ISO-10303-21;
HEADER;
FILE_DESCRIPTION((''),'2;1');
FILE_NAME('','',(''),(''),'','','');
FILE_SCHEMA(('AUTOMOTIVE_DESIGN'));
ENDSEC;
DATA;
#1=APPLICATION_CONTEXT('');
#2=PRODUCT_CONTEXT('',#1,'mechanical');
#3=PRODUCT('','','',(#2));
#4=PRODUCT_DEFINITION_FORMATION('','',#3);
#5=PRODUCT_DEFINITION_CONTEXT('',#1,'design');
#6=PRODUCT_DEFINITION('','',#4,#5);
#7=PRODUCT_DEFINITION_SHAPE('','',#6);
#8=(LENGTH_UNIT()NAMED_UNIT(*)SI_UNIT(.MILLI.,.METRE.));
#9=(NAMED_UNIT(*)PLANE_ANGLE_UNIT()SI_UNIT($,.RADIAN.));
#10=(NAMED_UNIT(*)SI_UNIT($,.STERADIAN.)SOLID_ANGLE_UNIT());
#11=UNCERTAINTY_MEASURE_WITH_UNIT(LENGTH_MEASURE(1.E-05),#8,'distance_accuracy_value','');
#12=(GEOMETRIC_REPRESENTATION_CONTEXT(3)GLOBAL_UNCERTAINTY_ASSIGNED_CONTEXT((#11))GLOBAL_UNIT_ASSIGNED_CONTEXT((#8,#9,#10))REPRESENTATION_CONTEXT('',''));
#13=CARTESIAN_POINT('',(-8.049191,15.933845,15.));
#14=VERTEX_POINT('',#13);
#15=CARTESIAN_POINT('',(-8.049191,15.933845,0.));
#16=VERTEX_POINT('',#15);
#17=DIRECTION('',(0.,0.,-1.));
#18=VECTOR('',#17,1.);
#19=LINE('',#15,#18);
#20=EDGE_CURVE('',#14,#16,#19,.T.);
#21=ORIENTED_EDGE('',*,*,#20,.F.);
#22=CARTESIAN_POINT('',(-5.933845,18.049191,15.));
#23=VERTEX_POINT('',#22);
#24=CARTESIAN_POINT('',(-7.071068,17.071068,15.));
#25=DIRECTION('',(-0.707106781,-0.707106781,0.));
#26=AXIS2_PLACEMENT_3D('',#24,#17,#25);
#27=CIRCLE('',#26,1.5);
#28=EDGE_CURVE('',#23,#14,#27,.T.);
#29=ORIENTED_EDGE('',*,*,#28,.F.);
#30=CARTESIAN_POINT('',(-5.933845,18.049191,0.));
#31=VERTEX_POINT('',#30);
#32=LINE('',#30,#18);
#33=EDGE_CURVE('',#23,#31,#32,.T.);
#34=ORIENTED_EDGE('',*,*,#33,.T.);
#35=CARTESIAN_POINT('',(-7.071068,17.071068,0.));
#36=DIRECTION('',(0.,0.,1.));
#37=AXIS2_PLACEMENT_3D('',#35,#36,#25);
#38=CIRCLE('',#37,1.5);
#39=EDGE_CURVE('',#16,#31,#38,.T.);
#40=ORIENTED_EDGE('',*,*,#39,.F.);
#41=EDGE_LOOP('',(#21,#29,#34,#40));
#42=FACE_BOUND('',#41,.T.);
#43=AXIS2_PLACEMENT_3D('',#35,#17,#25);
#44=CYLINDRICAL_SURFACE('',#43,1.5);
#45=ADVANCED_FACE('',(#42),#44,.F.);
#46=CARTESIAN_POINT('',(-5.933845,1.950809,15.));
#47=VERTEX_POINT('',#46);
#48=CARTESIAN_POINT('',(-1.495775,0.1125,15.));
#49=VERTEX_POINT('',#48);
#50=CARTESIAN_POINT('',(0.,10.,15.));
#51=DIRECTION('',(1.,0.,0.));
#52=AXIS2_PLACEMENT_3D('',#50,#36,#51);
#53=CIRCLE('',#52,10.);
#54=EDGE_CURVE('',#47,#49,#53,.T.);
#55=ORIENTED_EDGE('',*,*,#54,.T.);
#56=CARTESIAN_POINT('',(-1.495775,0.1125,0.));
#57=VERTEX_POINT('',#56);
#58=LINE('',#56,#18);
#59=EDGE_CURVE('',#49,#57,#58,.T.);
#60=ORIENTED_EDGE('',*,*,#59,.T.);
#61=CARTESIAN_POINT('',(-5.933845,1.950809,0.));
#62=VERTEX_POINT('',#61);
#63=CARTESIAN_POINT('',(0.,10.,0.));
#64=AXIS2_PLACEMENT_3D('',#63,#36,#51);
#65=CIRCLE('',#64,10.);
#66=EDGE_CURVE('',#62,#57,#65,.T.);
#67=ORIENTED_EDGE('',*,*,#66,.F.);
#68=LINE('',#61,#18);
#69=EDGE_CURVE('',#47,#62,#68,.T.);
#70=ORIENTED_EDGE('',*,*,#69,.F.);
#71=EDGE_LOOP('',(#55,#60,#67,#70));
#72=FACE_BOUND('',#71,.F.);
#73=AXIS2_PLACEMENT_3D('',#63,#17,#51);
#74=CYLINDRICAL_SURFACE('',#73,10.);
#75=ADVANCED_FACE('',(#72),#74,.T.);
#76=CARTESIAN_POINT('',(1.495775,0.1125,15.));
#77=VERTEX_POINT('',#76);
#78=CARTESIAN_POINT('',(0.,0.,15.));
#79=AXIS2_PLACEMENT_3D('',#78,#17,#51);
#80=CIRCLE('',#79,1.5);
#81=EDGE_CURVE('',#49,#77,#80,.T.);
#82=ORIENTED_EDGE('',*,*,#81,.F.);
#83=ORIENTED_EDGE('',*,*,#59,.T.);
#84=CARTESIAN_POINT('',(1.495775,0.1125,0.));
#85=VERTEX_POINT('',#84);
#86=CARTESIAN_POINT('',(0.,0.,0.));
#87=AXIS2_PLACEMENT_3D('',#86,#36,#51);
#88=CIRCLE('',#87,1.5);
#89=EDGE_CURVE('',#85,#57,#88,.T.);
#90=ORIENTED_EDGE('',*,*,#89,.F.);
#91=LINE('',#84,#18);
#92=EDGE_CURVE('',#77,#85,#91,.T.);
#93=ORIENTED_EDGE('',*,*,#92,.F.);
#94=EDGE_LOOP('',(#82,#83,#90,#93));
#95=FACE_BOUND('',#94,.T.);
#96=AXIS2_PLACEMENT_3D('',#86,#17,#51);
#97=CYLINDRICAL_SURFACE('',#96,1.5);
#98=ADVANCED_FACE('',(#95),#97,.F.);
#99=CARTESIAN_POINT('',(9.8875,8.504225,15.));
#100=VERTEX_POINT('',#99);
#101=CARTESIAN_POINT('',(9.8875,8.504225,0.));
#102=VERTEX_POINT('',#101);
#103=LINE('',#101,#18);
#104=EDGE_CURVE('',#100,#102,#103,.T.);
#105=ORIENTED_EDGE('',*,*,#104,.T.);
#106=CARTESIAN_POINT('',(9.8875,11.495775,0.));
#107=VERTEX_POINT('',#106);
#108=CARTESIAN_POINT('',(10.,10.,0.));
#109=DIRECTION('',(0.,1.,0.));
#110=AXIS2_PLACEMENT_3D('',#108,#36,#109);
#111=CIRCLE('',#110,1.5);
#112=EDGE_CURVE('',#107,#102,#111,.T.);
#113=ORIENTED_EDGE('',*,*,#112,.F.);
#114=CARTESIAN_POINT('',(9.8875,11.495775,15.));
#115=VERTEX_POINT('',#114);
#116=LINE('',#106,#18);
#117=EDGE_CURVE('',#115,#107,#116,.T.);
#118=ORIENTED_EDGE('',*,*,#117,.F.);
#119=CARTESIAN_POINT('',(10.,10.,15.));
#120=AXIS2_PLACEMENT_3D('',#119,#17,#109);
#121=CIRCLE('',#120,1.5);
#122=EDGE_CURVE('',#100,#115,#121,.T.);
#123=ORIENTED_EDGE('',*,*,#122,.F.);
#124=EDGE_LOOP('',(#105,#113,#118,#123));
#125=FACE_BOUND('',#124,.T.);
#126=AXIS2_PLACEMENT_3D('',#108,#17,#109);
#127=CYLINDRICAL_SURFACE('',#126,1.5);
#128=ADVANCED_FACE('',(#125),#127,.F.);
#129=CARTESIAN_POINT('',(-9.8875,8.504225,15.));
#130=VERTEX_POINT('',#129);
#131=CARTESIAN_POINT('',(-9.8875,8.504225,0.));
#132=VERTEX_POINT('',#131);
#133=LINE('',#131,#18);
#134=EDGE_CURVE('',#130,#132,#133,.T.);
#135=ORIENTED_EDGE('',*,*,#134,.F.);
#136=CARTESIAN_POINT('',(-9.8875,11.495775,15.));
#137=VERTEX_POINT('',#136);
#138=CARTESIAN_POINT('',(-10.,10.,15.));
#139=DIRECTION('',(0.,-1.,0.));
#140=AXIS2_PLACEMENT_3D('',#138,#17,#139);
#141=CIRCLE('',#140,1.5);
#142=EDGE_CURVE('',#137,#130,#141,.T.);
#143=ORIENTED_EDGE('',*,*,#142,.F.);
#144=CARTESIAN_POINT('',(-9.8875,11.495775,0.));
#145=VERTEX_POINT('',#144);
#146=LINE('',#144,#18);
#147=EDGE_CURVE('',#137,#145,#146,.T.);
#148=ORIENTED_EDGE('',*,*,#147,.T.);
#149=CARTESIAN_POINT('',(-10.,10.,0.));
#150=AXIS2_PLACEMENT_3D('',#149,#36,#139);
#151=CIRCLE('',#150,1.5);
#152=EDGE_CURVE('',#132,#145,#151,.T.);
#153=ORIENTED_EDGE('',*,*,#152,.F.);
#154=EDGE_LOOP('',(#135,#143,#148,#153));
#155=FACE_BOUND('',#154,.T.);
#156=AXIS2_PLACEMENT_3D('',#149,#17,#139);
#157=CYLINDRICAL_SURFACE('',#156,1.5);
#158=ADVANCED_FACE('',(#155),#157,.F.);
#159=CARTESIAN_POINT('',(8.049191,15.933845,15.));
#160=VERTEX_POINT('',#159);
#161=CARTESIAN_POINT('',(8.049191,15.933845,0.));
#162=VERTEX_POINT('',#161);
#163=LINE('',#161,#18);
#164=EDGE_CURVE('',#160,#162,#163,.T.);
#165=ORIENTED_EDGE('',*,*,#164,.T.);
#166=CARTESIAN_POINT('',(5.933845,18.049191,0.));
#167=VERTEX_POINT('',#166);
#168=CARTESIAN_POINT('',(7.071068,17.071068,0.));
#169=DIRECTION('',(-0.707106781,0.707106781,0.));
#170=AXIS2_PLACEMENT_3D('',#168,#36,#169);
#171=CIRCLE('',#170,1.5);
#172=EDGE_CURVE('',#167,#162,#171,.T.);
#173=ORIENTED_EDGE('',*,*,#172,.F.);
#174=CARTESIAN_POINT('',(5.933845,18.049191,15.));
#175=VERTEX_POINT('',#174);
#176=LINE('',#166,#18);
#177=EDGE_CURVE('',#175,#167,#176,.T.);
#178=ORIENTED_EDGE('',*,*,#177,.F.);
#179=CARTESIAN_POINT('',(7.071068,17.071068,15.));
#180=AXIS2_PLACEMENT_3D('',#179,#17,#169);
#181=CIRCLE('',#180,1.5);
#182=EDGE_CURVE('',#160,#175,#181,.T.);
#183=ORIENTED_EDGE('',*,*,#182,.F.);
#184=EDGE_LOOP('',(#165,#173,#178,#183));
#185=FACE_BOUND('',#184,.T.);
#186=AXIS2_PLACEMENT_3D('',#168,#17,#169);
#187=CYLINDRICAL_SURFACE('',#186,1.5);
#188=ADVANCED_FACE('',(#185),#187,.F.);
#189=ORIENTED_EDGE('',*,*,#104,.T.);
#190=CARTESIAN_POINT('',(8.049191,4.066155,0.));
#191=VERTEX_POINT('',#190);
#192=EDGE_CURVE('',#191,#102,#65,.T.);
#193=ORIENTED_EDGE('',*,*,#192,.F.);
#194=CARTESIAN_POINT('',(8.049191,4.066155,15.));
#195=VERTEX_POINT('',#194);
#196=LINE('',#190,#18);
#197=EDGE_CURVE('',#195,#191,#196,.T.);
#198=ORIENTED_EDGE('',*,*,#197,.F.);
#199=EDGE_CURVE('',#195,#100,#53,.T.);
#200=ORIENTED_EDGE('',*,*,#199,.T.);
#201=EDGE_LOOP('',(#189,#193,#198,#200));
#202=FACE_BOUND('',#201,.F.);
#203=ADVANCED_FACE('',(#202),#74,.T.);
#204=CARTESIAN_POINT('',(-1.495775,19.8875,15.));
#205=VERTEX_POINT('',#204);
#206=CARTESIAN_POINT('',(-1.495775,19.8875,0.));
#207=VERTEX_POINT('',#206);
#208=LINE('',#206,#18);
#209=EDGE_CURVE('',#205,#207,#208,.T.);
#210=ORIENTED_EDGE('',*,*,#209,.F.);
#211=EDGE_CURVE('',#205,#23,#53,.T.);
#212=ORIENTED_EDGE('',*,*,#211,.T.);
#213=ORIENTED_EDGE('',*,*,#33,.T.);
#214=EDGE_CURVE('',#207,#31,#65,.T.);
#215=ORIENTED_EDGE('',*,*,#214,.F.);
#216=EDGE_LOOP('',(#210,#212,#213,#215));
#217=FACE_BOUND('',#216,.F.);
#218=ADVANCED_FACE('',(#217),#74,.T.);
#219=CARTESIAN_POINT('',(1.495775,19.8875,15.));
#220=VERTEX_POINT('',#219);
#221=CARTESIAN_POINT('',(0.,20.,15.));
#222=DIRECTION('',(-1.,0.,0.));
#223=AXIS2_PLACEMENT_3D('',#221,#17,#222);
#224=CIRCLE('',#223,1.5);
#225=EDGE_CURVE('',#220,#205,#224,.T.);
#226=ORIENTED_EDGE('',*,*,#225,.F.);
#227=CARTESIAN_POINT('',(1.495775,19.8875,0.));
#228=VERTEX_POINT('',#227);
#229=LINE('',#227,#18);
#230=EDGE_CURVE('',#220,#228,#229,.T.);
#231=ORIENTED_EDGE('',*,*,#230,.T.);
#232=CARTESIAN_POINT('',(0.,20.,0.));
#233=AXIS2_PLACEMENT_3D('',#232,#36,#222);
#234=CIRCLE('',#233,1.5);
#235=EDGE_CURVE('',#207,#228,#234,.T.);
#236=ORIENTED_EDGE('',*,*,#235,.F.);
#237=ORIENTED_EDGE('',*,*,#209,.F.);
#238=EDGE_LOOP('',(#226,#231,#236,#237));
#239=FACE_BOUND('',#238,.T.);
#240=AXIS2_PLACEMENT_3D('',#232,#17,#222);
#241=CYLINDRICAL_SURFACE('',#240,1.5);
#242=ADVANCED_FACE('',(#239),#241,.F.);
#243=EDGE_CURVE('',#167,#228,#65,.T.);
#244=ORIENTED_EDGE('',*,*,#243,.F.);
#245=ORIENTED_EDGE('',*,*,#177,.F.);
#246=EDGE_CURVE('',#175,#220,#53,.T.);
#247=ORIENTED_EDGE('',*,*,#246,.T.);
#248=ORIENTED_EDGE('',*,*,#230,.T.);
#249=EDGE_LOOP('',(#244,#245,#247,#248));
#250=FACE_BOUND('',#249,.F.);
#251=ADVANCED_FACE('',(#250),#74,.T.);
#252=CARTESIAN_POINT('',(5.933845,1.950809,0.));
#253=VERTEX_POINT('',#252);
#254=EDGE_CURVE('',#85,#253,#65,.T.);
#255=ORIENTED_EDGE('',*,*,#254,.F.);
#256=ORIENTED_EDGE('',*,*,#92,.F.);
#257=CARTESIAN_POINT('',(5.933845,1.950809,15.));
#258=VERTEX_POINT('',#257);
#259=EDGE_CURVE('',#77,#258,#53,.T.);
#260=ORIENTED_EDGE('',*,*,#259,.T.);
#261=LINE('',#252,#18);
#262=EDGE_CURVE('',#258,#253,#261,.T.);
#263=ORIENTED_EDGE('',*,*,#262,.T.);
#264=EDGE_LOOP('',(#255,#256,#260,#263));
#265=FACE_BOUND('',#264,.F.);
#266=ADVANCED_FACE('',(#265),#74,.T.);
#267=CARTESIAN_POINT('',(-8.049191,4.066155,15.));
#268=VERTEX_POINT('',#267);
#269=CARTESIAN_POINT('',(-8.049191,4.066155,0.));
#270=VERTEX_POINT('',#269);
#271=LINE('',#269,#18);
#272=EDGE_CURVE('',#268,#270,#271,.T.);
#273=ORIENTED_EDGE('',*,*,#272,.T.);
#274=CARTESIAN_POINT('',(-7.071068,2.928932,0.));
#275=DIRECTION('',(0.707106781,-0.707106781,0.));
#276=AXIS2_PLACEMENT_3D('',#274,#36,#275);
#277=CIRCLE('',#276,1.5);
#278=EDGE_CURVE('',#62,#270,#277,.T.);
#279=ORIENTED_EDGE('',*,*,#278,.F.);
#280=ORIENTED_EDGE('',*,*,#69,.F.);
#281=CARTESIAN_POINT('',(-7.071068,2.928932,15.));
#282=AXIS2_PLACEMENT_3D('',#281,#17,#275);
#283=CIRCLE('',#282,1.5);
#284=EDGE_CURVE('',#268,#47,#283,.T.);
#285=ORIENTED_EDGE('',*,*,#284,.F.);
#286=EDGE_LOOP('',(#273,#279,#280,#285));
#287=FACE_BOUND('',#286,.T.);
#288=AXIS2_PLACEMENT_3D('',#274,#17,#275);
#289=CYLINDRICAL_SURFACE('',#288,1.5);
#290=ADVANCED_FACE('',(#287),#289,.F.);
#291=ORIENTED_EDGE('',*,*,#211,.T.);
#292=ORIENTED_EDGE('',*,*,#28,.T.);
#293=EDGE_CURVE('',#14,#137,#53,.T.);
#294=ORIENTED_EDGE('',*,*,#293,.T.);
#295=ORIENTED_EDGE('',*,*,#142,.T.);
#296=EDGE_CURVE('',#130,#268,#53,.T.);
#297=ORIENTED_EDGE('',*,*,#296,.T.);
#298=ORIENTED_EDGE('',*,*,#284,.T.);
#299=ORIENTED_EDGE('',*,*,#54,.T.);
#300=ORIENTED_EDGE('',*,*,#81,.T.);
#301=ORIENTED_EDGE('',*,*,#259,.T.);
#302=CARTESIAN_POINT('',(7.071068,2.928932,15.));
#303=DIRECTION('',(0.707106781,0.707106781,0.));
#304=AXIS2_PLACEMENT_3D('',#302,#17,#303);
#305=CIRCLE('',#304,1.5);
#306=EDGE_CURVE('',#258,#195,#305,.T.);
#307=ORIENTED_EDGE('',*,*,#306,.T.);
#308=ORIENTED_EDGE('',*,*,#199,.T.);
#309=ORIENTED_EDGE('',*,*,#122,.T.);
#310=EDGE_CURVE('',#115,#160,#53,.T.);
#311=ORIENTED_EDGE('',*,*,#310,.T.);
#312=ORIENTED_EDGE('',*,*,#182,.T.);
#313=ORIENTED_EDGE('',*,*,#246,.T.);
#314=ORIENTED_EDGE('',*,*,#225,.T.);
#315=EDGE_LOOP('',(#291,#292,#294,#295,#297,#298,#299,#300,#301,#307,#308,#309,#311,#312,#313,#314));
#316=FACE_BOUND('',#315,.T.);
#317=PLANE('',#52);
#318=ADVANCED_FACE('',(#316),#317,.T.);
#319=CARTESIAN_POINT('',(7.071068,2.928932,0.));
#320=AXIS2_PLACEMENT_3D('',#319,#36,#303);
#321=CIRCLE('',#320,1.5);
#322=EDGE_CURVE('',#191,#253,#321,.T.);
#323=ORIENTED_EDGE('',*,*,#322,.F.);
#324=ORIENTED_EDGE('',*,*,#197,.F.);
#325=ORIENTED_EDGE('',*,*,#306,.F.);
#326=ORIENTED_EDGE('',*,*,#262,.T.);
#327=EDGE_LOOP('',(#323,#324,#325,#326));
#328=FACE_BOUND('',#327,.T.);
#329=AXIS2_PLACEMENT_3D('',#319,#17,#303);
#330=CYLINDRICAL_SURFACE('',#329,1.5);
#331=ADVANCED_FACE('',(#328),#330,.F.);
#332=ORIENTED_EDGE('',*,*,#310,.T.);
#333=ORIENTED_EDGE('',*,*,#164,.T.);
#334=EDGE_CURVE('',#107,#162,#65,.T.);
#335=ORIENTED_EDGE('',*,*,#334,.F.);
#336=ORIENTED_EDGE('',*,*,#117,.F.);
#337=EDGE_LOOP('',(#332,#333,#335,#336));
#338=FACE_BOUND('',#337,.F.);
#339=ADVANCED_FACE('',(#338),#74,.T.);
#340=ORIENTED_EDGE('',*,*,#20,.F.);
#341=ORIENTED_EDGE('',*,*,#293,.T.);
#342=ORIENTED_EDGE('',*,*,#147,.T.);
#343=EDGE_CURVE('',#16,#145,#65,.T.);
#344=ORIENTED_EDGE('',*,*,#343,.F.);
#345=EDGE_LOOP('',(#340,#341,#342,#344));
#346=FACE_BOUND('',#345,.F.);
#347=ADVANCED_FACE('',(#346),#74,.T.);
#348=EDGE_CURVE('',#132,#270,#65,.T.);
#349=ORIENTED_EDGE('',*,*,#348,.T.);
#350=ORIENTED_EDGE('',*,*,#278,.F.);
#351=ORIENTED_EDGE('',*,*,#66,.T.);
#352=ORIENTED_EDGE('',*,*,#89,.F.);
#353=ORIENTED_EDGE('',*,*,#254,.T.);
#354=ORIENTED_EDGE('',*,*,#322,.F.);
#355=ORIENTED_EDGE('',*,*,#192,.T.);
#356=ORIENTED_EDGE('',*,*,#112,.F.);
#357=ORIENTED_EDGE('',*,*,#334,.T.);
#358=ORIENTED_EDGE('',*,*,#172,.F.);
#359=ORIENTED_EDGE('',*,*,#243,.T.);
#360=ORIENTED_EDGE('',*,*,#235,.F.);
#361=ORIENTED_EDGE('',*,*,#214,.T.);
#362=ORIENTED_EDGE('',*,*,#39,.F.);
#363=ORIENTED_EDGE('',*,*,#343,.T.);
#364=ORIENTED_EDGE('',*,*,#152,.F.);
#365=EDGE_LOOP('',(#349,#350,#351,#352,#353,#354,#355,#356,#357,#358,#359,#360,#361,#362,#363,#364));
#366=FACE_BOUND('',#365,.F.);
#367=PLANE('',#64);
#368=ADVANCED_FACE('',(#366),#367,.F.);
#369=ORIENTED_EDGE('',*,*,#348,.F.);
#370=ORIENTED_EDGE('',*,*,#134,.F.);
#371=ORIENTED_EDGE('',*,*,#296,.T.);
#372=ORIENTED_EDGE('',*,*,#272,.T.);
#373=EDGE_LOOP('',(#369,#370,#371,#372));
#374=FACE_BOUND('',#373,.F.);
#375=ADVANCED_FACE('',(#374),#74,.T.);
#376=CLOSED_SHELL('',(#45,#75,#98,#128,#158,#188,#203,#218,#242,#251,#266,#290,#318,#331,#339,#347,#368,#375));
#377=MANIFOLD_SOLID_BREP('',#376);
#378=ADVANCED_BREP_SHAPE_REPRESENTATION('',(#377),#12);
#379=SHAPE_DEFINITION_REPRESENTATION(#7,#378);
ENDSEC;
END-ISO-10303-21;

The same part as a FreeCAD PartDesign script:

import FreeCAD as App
import Part
import Sketcher

doc = App.newDocument("Part")
body = doc.addObject("PartDesign::Body", "Body")

sketch1 = body.newObject("Sketcher::SketchObject", "Sketch")
sketch1.AttachmentSupport = (doc.getObject("XY_Plane"), [""])
sketch1.MapMode = "FlatFace"
sketch1.addGeometry(Part.Circle(App.Vector(0, 0, 0), App.Vector(0, 0, 1), 1.5), False)
sketch1.addConstraint(Sketcher.Constraint("Coincident", 0, 3, -1, 1))
sketch1.addConstraint(Sketcher.Constraint("Diameter", 0, 3.0))
pad1 = body.newObject("PartDesign::Pad", "Pad")
pad1.Profile = sketch1
pad1.Length = 40
body2 = doc.addObject("PartDesign::Body", "Body001")
body2.AllowCompound = True
doc.recompute()

body2.BaseFeature = body
doc.recompute()

body3 = doc.addObject("PartDesign::Body", "Body002")
body3.BaseFeature = body
body3.Placement = App.Placement(App.Vector(7.071068, 2.928932, 0), App.Rotation(App.Vector(0, 0, 1), 45))
boolean = body2.newObject("PartDesign::Boolean", "Boolean")
boolean.Type = "Fuse"
boolean.addObjects([body3])
doc.recompute()

body4 = doc.addObject("PartDesign::Body", "Body003")
body4.BaseFeature = body
body4.Placement = App.Placement(App.Vector(10, 10, 0), App.Rotation(App.Vector(0, 0, 1), 90))
boolean2 = body2.newObject("PartDesign::Boolean", "Boolean001")
boolean2.Type = "Fuse"
boolean2.addObjects([body4])
doc.recompute()

body5 = doc.addObject("PartDesign::Body", "Body004")
body5.BaseFeature = body
body5.Placement = App.Placement(App.Vector(7.071068, 17.071068, 0), App.Rotation(App.Vector(0, 0, 1), 135))
boolean3 = body2.newObject("PartDesign::Boolean", "Boolean002")
boolean3.Type = "Fuse"
boolean3.addObjects([body5])
doc.recompute()

body6 = doc.addObject("PartDesign::Body", "Body005")
body6.BaseFeature = body
body6.Placement = App.Placement(App.Vector(0, 20, 0), App.Rotation(App.Vector(0, 0, 1), 180))
boolean4 = body2.newObject("PartDesign::Boolean", "Boolean003")
boolean4.Type = "Fuse"
boolean4.addObjects([body6])
doc.recompute()

body7 = doc.addObject("PartDesign::Body", "Body006")
body7.BaseFeature = body
body7.Placement = App.Placement(App.Vector(-7.071068, 17.071068, 0), App.Rotation(App.Vector(0, 0, 1), 225))
boolean5 = body2.newObject("PartDesign::Boolean", "Boolean004")
boolean5.Type = "Fuse"
boolean5.addObjects([body7])
doc.recompute()

body8 = doc.addObject("PartDesign::Body", "Body007")
body8.BaseFeature = body
body8.Placement = App.Placement(App.Vector(-10, 10, 0), App.Rotation(App.Vector(0, 0, 1), 270))
boolean6 = body2.newObject("PartDesign::Boolean", "Boolean005")
boolean6.Type = "Fuse"
boolean6.addObjects([body8])
doc.recompute()

body.Placement = App.Placement(App.Vector(-7.071068, 2.928932, 0), App.Rotation(App.Vector(0, 0, 1), 315))
boolean7 = body2.newObject("PartDesign::Boolean", "Boolean006")
boolean7.Type = "Fuse"
boolean7.addObjects([body])
body9 = doc.addObject("PartDesign::Body", "Body008")

sketch2 = body9.newObject("Sketcher::SketchObject", "Sketch001")
sketch2.AttachmentSupport = (doc.getObject("XY_Plane008"), [""])
sketch2.MapMode = "FlatFace"
sketch2.addGeometry(Part.Circle(App.Vector(0, 10, 0), App.Vector(0, 0, 1), 10), False)
sketch2.addConstraint(Sketcher.Constraint("PointOnObject", 0, 3, -2))
sketch2.addConstraint(Sketcher.Constraint("Diameter", 0, 20.0))
sketch2.addConstraint(Sketcher.Constraint("DistanceY", -1, 1, 0, 3, 10.0))
pad2 = body9.newObject("PartDesign::Pad", "Pad001")
pad2.Profile = sketch2
pad2.Length = 15
doc.recompute()

boolean8 = body9.newObject("PartDesign::Boolean", "Boolean007")
boolean8.Type = "Cut"
boolean8.addObjects([body2])

doc.recompute()
